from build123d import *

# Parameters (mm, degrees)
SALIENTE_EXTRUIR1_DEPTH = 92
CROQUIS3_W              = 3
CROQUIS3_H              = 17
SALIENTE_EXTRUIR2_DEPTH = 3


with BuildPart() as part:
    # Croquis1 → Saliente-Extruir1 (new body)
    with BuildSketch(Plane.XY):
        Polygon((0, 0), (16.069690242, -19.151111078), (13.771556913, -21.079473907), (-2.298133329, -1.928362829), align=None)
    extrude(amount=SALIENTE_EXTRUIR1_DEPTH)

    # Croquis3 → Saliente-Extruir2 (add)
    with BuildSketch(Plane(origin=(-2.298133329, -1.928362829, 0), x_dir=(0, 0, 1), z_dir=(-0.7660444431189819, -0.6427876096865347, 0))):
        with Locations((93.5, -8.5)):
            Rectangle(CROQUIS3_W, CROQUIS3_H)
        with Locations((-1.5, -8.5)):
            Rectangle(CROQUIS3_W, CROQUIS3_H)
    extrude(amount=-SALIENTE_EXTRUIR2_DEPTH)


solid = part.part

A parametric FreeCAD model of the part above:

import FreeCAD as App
import Part
import Sketcher
Q = App.Units.Quantity

doc = App.newDocument("Part")
params = doc.addObject("Spreadsheet::Sheet", "Params")
for row, (alias, value) in enumerate([
    ("sketch1_length", "25 mm"),
    ("sketch1_length2", "3 mm"),
    ("pad1_length", "92 mm"),
    ("sketch2_width", "3 mm"),
    ("sketch2_height", "17 mm"),
    ("pad2_length", "3 mm"),
], start=1):
    params.set(f"A{row}", alias)
    params.set(f"B{row}", "=" + value)
    params.setAlias(f"B{row}", alias)

body = doc.addObject("PartDesign::Body", "Body")

# Sketch on XY plane
sketch1 = body.newObject("Sketcher::SketchObject", "Sketch")
sketch1.AttachmentSupport = (doc.getObject("XY_Plane"), [""])
sketch1.MapMode = "FlatFace"
sketch1.addGeometry(Part.LineSegment(App.Vector(16.1, -19.2, 0), App.Vector(0, 0, 0)), False)
sketch1.addGeometry(Part.LineSegment(App.Vector(0, 0, 0), App.Vector(-2.3, -1.9, 0)), False)
sketch1.addGeometry(Part.LineSegment(App.Vector(-2.3, -1.9, 0), App.Vector(13.8, -21.1, 0)), False)
sketch1.addGeometry(Part.LineSegment(App.Vector(13.8, -21.1, 0), App.Vector(16.1, -19.2, 0)), False)
sketch1.addConstraint(Sketcher.Constraint("Coincident", 0, 2, 1, 1))
sketch1.addConstraint(Sketcher.Constraint("Coincident", 1, 2, 2, 1))
sketch1.addConstraint(Sketcher.Constraint("Coincident", 2, 2, 3, 1))
sketch1.addConstraint(Sketcher.Constraint("Coincident", 3, 2, 0, 1))
sketch1.addConstraint(Sketcher.Constraint("Coincident", 0, 2, -1, 1))
sketch1.addConstraint(Sketcher.Constraint("Perpendicular", 0, 1))
sketch1.addConstraint(Sketcher.Constraint("Perpendicular", 1, 2))
sketch1.addConstraint(Sketcher.Constraint("Perpendicular", 2, 3))
sketch1.addConstraint(Sketcher.Constraint("Angle", 0, Q("130 deg")))
sketch1.addConstraint(Sketcher.Constraint("Distance", 0, Q("25 mm")))
sketch1.addConstraint(Sketcher.Constraint("Distance", 1, Q("3 mm")))
sketch1.setExpression("Constraints[9]", "Params.sketch1_length")
sketch1.setExpression("Constraints[10]", "Params.sketch1_length2")
pad1 = body.newObject("PartDesign::Pad", "Pad")
pad1.Profile = sketch1
pad1.setExpression("Length", "Params.pad1_length")

# Sketch on an angled plane
sketch2 = body.newObject("Sketcher::SketchObject", "Sketch001")
sketch2.Placement = App.Placement(App.Vector(-2.298133, -1.928363, 0), App.Rotation(App.Vector(0, 0, 1), App.Vector(-0.64278761, 0.766044443, 0), App.Vector(-0.766044443, -0.64278761, 0), "ZXY"))
sketch2.addGeometry(Part.LineSegment(App.Vector(92, 0, 0), App.Vector(92, -17, 0)), False)
sketch2.addGeometry(Part.LineSegment(App.Vector(92, -17, 0), App.Vector(95, -17, 0)), False)
sketch2.addGeometry(Part.LineSegment(App.Vector(95, -17, 0), App.Vector(95, 0, 0)), False)
sketch2.addGeometry(Part.LineSegment(App.Vector(95, 0, 0), App.Vector(92, 0, 0)), False)
sketch2.addGeometry(Part.LineSegment(App.Vector(-3, 0, 0), App.Vector(-3, -17, 0)), False)
sketch2.addGeometry(Part.LineSegment(App.Vector(-3, -17, 0), App.Vector(0, -17, 0)), False)
sketch2.addGeometry(Part.LineSegment(App.Vector(0, -17, 0), App.Vector(0, 0, 0)), False)
sketch2.addGeometry(Part.LineSegment(App.Vector(0, 0, 0), App.Vector(-3, 0, 0)), False)
sketch2.addConstraint(Sketcher.Constraint("Coincident", 0, 2, 1, 1))
sketch2.addConstraint(Sketcher.Constraint("Coincident", 1, 2, 2, 1))
sketch2.addConstraint(Sketcher.Constraint("Coincident", 2, 2, 3, 1))
sketch2.addConstraint(Sketcher.Constraint("Coincident", 3, 2, 0, 1))
sketch2.addConstraint(Sketcher.Constraint("Coincident", 4, 2, 5, 1))
sketch2.addConstraint(Sketcher.Constraint("Coincident", 5, 2, 6, 1))
sketch2.addConstraint(Sketcher.Constraint("Coincident", 6, 2, 7, 1))
sketch2.addConstraint(Sketcher.Constraint("Coincident", 7, 2, 4, 1))
sketch2.addConstraint(Sketcher.Constraint("Vertical", 0))
sketch2.addConstraint(Sketcher.Constraint("Horizontal", 1))
sketch2.addConstraint(Sketcher.Constraint("Vertical", 2))
sketch2.addConstraint(Sketcher.Constraint("Horizontal", 3))
sketch2.addConstraint(Sketcher.Constraint("Vertical", 4))
sketch2.addConstraint(Sketcher.Constraint("Horizontal", 5))
sketch2.addConstraint(Sketcher.Constraint("Vertical", 6))
sketch2.addConstraint(Sketcher.Constraint("Horizontal", 7))
sketch2.addConstraint(Sketcher.Constraint("Coincident", 6, 2, -1, 1))
sketch2.addConstraint(Sketcher.Constraint("PointOnObject", 2, 2, -1))
sketch2.addConstraint(Sketcher.Constraint("Horizontal", 1, 2, 4, 2))
sketch2.addConstraint(Sketcher.Constraint("Equal", 3, 5))
sketch2.addConstraint(Sketcher.Constraint("DistanceX", 1, 1, 1, 2, Q("3 mm")))
sketch2.addConstraint(Sketcher.Constraint("DistanceY", 0, 2, 0, 1, Q("17 mm")))
sketch2.addConstraint(Sketcher.Constraint("DistanceX", -1, 1, 0, 2, Q("92 mm")))
sketch2.setExpression("Constraints[20]", "Params.sketch2_width")
sketch2.setExpression("Constraints[21]", "Params.sketch2_height")
pad2 = body.newObject("PartDesign::Pad", "Pad001")
pad2.Profile = sketch2
pad2.setExpression("Length", "Params.pad2_length")
pad2.Reversed = True

doc.recompute()
